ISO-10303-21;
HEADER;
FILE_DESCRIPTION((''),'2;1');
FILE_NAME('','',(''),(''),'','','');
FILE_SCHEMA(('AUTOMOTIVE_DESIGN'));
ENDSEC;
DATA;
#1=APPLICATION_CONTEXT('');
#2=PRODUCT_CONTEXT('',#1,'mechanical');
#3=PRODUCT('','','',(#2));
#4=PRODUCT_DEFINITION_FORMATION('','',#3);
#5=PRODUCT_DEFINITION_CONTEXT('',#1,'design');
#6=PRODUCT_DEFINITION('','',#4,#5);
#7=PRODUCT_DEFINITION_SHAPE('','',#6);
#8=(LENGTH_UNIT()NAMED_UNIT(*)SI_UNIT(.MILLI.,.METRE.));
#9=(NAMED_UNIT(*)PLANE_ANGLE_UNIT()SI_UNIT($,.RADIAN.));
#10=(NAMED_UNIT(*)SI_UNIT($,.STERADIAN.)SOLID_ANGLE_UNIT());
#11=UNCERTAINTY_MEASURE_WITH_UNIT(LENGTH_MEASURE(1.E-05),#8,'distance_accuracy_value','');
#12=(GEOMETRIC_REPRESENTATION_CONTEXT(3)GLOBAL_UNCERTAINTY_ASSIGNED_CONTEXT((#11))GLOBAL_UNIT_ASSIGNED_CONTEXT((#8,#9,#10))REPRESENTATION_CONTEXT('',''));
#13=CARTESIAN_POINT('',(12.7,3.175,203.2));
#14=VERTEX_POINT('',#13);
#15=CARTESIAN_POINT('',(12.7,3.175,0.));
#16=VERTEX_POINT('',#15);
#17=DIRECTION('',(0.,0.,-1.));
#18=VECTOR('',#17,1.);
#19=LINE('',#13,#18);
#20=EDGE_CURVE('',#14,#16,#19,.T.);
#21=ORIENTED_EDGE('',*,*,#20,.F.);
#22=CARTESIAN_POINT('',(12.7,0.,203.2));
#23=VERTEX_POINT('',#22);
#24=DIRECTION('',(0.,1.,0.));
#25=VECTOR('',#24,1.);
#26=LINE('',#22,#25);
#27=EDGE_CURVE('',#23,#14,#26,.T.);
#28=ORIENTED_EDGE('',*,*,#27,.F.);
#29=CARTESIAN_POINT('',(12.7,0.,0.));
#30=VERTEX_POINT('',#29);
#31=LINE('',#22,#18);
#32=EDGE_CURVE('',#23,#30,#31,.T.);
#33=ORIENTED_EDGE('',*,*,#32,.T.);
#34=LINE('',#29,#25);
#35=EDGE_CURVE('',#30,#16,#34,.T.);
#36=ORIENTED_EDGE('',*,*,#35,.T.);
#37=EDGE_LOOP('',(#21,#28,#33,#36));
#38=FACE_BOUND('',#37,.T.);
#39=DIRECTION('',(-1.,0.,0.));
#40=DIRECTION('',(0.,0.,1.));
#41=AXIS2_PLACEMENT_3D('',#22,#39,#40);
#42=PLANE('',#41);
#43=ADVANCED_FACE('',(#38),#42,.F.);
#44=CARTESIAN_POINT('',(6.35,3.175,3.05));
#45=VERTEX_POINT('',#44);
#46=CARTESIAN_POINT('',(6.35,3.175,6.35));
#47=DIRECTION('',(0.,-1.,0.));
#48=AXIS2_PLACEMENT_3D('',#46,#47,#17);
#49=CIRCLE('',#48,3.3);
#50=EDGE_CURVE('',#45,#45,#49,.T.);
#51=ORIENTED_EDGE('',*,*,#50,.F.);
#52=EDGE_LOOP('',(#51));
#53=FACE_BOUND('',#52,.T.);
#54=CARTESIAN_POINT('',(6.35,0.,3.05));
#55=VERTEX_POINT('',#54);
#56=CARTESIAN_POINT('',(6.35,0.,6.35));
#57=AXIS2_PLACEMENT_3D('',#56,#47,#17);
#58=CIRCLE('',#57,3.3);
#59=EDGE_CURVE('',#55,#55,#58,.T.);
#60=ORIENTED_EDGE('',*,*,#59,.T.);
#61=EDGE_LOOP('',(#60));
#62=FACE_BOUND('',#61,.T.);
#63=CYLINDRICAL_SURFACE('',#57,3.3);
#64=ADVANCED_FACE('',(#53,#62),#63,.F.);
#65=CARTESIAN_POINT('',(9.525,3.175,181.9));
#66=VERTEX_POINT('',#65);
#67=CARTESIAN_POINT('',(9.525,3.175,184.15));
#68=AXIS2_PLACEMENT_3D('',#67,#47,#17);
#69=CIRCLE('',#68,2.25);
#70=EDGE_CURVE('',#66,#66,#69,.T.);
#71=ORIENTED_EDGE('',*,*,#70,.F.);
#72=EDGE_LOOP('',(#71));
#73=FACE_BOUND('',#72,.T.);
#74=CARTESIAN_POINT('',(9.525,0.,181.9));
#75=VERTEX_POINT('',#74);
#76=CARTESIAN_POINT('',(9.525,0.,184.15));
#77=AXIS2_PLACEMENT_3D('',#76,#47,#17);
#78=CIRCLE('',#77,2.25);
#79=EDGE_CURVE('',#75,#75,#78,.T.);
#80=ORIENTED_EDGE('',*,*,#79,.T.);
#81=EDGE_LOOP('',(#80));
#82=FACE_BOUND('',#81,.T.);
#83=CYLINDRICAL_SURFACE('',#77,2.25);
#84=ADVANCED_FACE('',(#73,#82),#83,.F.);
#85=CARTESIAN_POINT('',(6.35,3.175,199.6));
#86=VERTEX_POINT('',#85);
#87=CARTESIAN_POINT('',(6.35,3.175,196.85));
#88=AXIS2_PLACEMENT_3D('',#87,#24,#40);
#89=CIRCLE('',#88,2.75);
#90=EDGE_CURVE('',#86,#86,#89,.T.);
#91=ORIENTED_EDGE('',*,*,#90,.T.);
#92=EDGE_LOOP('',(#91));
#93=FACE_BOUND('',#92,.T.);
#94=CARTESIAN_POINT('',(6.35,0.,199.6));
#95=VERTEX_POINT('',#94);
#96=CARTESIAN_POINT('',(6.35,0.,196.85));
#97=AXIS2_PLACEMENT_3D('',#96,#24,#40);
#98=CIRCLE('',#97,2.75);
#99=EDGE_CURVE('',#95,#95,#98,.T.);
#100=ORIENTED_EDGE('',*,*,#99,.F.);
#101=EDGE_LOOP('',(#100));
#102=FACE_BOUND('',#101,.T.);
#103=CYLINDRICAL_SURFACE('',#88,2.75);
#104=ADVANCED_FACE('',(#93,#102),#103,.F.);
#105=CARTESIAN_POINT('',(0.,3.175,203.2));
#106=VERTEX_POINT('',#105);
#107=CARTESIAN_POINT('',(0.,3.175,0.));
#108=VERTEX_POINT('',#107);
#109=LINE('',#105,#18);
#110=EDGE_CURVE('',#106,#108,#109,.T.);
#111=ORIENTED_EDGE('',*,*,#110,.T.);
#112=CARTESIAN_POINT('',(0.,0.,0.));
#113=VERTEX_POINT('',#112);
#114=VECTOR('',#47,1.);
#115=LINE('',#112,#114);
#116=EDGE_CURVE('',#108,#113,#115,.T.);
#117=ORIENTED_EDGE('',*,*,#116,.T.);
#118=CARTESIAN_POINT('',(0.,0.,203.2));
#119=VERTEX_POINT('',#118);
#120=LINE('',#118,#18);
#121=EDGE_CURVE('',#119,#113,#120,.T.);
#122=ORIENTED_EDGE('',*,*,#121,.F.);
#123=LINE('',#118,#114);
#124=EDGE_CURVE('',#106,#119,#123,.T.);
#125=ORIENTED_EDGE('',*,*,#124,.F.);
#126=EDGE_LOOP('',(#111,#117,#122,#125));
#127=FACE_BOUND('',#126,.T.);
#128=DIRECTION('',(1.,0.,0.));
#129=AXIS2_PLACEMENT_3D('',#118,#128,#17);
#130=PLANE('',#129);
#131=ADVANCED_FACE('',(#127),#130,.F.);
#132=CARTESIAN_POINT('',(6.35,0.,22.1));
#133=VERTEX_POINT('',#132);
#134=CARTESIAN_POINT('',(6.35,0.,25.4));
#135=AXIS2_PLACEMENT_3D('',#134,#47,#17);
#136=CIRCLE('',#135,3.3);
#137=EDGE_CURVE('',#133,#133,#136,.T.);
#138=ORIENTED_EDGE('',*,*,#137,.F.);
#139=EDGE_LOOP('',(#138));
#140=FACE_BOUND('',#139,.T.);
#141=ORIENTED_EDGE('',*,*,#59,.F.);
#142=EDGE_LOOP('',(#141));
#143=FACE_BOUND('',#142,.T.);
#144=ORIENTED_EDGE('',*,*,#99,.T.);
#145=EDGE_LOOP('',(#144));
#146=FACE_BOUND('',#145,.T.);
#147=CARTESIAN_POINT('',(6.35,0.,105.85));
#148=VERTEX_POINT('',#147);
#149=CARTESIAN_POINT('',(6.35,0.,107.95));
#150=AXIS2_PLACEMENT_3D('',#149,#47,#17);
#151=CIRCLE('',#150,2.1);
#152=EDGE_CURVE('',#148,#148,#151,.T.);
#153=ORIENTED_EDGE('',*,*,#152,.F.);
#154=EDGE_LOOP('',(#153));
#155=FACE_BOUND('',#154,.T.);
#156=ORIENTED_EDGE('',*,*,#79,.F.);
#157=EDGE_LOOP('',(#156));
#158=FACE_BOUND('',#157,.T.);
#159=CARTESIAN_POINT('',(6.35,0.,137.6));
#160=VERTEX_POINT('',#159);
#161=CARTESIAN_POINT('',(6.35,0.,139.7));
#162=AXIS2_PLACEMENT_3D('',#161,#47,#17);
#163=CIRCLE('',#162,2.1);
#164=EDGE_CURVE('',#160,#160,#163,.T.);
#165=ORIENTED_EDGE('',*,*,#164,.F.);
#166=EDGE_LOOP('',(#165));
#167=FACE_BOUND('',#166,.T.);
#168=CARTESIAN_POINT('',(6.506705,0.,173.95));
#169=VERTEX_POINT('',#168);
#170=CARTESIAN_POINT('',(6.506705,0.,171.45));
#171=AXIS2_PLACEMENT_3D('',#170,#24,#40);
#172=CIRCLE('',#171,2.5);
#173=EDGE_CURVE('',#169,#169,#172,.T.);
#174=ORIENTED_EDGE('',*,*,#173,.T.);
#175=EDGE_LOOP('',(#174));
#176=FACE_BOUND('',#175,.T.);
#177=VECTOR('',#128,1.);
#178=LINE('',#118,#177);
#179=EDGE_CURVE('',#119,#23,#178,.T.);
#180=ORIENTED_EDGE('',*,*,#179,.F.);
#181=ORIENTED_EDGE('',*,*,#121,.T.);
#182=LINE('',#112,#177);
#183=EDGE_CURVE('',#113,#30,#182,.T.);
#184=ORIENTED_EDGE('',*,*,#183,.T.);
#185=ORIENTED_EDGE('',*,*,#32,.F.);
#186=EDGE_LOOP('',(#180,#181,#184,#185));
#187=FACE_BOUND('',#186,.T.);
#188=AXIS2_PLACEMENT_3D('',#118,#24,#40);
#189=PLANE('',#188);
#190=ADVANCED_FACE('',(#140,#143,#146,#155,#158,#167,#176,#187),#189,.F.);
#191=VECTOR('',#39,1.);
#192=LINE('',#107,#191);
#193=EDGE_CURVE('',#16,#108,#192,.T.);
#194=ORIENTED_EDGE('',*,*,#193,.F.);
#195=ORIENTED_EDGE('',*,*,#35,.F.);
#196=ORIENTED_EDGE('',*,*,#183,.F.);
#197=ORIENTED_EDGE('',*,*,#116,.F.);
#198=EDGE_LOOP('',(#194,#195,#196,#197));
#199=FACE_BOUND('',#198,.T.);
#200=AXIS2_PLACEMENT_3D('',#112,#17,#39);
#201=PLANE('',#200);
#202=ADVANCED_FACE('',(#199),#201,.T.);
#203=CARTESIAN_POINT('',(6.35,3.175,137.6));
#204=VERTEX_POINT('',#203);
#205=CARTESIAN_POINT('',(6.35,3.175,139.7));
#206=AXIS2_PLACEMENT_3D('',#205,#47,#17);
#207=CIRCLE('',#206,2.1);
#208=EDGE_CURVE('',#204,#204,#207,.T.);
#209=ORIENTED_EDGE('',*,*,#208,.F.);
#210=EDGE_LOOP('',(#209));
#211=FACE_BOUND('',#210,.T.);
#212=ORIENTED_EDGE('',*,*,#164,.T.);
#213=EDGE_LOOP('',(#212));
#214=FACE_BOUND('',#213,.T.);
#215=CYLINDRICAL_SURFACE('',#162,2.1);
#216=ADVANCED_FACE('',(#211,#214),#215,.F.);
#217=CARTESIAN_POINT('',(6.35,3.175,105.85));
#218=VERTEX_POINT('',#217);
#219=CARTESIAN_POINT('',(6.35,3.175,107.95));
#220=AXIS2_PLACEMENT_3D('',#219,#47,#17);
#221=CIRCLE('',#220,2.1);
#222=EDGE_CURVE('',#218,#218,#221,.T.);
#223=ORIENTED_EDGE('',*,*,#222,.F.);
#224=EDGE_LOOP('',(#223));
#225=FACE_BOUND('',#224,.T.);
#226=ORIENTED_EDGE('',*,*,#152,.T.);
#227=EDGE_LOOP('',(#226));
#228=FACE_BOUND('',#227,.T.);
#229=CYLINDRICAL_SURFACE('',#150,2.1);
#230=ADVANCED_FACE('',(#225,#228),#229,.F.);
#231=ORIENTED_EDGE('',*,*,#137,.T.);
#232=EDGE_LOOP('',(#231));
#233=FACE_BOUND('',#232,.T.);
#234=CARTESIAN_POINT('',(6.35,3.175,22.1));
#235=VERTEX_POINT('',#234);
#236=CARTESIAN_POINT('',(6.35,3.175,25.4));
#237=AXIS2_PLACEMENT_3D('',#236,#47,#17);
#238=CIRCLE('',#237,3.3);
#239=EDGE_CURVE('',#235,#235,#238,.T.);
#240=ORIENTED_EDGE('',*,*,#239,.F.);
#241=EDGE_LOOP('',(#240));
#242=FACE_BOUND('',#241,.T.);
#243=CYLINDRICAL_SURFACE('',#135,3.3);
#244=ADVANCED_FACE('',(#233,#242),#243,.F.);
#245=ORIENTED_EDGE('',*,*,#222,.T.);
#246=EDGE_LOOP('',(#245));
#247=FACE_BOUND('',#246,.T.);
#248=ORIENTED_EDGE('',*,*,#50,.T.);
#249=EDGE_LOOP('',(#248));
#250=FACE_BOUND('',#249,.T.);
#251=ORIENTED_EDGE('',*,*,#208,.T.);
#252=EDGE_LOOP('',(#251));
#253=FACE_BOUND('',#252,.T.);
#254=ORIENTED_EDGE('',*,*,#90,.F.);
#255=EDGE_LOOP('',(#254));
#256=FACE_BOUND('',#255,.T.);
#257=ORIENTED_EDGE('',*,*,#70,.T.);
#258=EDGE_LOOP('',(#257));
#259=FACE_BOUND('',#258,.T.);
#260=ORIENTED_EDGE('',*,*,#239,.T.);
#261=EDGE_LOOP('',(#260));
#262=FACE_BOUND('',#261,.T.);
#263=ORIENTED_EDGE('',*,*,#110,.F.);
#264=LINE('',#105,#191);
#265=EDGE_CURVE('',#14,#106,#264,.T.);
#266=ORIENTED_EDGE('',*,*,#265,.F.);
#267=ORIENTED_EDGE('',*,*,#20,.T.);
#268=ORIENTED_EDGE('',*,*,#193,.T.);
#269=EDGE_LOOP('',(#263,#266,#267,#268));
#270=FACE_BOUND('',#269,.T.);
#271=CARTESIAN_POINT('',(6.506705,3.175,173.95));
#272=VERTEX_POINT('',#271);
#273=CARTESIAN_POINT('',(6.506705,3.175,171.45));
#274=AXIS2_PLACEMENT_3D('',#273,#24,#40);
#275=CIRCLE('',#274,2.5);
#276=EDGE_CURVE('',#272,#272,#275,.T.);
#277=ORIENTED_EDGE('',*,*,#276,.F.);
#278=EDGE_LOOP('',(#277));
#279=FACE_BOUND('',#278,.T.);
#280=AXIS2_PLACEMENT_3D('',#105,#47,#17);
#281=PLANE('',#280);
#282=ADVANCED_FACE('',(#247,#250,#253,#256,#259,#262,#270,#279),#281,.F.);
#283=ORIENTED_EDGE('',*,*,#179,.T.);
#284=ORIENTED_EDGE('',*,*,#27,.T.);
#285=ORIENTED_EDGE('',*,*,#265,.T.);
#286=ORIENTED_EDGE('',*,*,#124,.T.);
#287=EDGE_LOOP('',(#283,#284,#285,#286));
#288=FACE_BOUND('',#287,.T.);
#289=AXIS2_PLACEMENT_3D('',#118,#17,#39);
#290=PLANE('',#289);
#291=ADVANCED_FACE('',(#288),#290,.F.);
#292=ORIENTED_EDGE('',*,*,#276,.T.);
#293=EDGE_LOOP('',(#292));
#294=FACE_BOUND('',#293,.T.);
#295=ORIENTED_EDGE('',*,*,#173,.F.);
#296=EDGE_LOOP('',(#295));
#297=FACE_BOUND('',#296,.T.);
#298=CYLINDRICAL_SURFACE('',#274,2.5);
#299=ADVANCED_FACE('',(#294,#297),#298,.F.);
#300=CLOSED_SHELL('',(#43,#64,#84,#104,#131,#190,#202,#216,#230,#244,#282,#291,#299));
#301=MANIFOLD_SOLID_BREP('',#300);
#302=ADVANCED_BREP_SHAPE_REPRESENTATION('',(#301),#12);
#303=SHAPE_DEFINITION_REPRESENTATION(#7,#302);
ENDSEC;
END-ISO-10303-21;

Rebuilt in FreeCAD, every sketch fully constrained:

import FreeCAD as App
import Part
import Sketcher

doc = App.newDocument("Part")
body = doc.addObject("PartDesign::Body", "Body")

sketch1 = body.newObject("Sketcher::SketchObject", "Sketch")
sketch1.AttachmentSupport = (doc.getObject("XY_Plane"), [""])
sketch1.MapMode = "FlatFace"
sketch1.addGeometry([
    Part.LineSegment(App.Vector(0, 3.2, 0), App.Vector(0, 0, 0)),
    Part.LineSegment(App.Vector(0, 0, 0), App.Vector(12.7, 0, 0)),
    Part.LineSegment(App.Vector(12.7, 0, 0), App.Vector(12.7, 3.2, 0)),
    Part.LineSegment(App.Vector(12.7, 3.2, 0), App.Vector(0, 3.2, 0)),
], False)
sketch1.addConstraint([
    Sketcher.Constraint("Coincident", 0, 2, 1, 1),
    Sketcher.Constraint("Coincident", 1, 2, 2, 1),
    Sketcher.Constraint("Coincident", 2, 2, 3, 1),
    Sketcher.Constraint("Coincident", 3, 2, 0, 1),
    Sketcher.Constraint("Vertical", 0),
    Sketcher.Constraint("Horizontal", 1),
    Sketcher.Constraint("Vertical", 2),
    Sketcher.Constraint("Horizontal", 3),
    Sketcher.Constraint("Coincident", 0, 2, -1, 1),
    Sketcher.Constraint("DistanceX", 1, 1, 1, 2, 12.7),
    Sketcher.Constraint("DistanceY", 0, 2, 0, 1, 3.175),
])
pad1 = body.newObject("PartDesign::Pad", "Pad")
pad1.Profile = sketch1
pad1.Length = 203.2

sketch2 = body.newObject("Sketcher::SketchObject", "Sketch001")
sketch2.AttachmentSupport = (doc.getObject("XZ_Plane"), [""])
sketch2.MapMode = "FlatFace"
sketch2.addGeometry([
    Part.Circle(App.Vector(6.3, 6.3, 0), App.Vector(0, 0, 1), 3.3),
    Part.Circle(App.Vector(6.3, 25.4, 0), App.Vector(0, 0, 1), 3.3),
], False)
sketch2.addConstraint([
    Sketcher.Constraint("Equal", 0, 1),
    Sketcher.Constraint("Vertical", 0, 3, 1, 3),
    Sketcher.Constraint("Diameter", 0, 6.6),
    Sketcher.Constraint("DistanceY", -1, 1, 1, 3, 25.4),
    Sketcher.Constraint("DistanceX", -1, 1, 0, 3, 6.35),
    Sketcher.Constraint("DistanceY", -1, 1, 0, 3, 6.35),
])
doc.recompute()
hole = body.newObject("PartDesign::Hole", "Hole")
hole.Profile = sketch2
hole.ThreadType = "None"
hole.Diameter = 6.6
hole.DepthType = "ThroughAll"

sketch3 = body.newObject("Sketcher::SketchObject", "Sketch002")
sketch3.AttachmentSupport = (doc.getObject("XZ_Plane"), [""])
sketch3.MapMode = "FlatFace"
sketch3.addGeometry([
    Part.Circle(App.Vector(6.3, 139.7, 0), App.Vector(0, 0, 1), 2.1),
    Part.Circle(App.Vector(6.3, 108, 0), App.Vector(0, 0, 1), 2.1),
], False)
sketch3.addConstraint([
    Sketcher.Constraint("Equal", 0, 1),
    Sketcher.Constraint("Vertical", 0, 3, 1, 3),
    Sketcher.Constraint("Diameter", 0, 4.2),
    Sketcher.Constraint("DistanceY", -1, 1, 0, 3, 139.7),
    Sketcher.Constraint("DistanceX", -1, 1, 0, 3, 6.35),
    Sketcher.Constraint("DistanceY", -1, 1, 1, 3, 107.95),
])
doc.recompute()
hole2 = body.newObject("PartDesign::Hole", "Hole001")
hole2.Profile = sketch3
hole2.ThreadType = "None"
hole2.Diameter = 4.2
hole2.DepthType = "ThroughAll"

sketch4 = body.newObject("Sketcher::SketchObject", "Sketch003")
sketch4.AttachmentSupport = (doc.getObject("XZ_Plane"), [""])
sketch4.MapMode = "FlatFace"
sketch4.AttachmentOffset = App.Placement(App.Vector(0, 0, -3.175), App.Rotation())
sketch4.addGeometry(Part.Circle(App.Vector(6.5, 171.4, 0), App.Vector(0, 0, 1), 2.5), False)
sketch4.addConstraint([
    Sketcher.Constraint("Diameter", 0, 5.0),
    Sketcher.Constraint("DistanceY", -1, 1, 0, 3, 171.45),
    Sketcher.Constraint("DistanceX", -1, 1, 0, 3, 6.506705),
])
doc.recompute()
hole3 = body.newObject("PartDesign::Hole", "Hole002")
hole3.Profile = sketch4
hole3.ThreadType = "None"
hole3.Diameter = 5
hole3.DepthType = "ThroughAll"
hole3.Reversed = True

sketch5 = body.newObject("Sketcher::SketchObject", "Sketch004")
sketch5.AttachmentSupport = (doc.getObject("XZ_Plane"), [""])
sketch5.MapMode = "FlatFace"
sketch5.AttachmentOffset = App.Placement(App.Vector(0, 0, -3.175), App.Rotation())
sketch5.addGeometry(Part.Circle(App.Vector(6.3, 196.8, 0), App.Vector(0, 0, 1), 2.8), False)
sketch5.addConstraint([
    Sketcher.Constraint("Diameter", 0, 5.5),
    Sketcher.Constraint("DistanceX", -1, 1, 0, 3, 6.35),
    Sketcher.Constraint("DistanceY", -1, 1, 0, 3, 196.85),
])
doc.recompute()
hole4 = body.newObject("PartDesign::Hole", "Hole003")
hole4.Profile = sketch5
hole4.ThreadType = "None"
hole4.Diameter = 5.5
hole4.DepthType = "ThroughAll"
hole4.Reversed = True

sketch6 = body.newObject("Sketcher::SketchObject", "Sketch005")
sketch6.AttachmentSupport = (doc.getObject("XZ_Plane"), [""])
sketch6.MapMode = "FlatFace"
sketch6.addGeometry(Part.Circle(App.Vector(9.5, 184.2, 0), App.Vector(0, 0, 1), 2.2), False)
sketch6.addConstraint([
    Sketcher.Constraint("Diameter", 0, 4.5),
    Sketcher.Constraint("DistanceY", -1, 1, 0, 3, 184.15),
    Sketcher.Constraint("DistanceX", -1, 1, 0, 3, 9.525),
])
doc.recompute()
hole5 = body.newObject("PartDesign::Hole", "Hole004")
hole5.Profile = sketch6
hole5.ThreadType = "None"
hole5.Diameter = 4.5
hole5.DepthType = "ThroughAll"

doc.recompute()
